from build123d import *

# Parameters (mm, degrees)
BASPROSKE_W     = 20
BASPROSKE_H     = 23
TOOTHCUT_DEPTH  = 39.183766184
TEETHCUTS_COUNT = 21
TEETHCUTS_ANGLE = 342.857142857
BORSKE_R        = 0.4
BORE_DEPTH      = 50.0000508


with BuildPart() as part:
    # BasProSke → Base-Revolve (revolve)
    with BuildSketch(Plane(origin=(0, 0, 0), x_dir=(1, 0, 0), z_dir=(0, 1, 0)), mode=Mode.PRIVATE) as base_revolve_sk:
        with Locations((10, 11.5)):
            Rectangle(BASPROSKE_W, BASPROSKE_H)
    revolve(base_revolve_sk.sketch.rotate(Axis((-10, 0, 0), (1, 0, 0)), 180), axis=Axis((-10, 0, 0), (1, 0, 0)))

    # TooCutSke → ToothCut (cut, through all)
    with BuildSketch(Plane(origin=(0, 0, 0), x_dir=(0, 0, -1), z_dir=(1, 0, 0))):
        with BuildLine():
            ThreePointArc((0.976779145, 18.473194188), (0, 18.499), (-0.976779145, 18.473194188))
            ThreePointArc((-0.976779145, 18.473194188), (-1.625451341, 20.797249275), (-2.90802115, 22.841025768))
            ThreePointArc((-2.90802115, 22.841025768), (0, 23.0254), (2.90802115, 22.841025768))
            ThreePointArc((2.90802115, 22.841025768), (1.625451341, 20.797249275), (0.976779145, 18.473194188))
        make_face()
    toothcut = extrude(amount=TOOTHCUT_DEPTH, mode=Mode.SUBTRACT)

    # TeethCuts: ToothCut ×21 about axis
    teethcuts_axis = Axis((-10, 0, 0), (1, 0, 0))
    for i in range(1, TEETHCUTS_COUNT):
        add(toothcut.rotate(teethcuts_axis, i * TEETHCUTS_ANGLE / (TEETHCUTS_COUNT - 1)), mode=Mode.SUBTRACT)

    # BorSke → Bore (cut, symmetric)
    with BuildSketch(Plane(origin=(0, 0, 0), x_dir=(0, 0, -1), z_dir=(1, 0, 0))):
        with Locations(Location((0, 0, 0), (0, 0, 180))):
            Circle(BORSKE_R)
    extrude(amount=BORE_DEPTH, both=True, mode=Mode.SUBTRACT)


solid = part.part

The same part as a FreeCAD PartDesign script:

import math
import FreeCAD as App
import Part
import Sketcher
from FreeCAD import Vector
Q = App.Units.Quantity


def add_polygon(sketch, points):
    """Adds a closed chain of lines whose ends are joined by coincident constraints."""
    first, n = sketch.GeometryCount, len(points)
    for a, b in zip(points, points[1:] + points[:1]):
        sketch.addGeometry(Part.LineSegment(App.Vector(*a, 0), App.Vector(*b, 0)), False)
    for i in range(n):
        sketch.addConstraint(Sketcher.Constraint("Coincident", first + i, 2, first + (i + 1) % n, 1))

doc = App.newDocument("Part")
body = doc.addObject("PartDesign::Body", "Body")

sketch1 = doc.addObject("Sketcher::SketchObject", "Sketch")
body.addObject(sketch1)
sketch1.AttachmentSupport = (doc.XZ_Plane, [""])
sketch1.MapMode = "FlatFace"
add_polygon(sketch1, [(0, -23), (0, 0), (20, 0), (20, -23)])
sketch1.addConstraint(Sketcher.Constraint("Vertical", 0))
sketch1.addConstraint(Sketcher.Constraint("Horizontal", 1))
sketch1.addConstraint(Sketcher.Constraint("Vertical", 2))
sketch1.addConstraint(Sketcher.Constraint("Horizontal", 3))
sketch1.addConstraint(Sketcher.Constraint("Coincident", 0, 2, -1, 1))
sketch1.addConstraint(Sketcher.Constraint("DistanceX", 1, 1, 1, 2, Q("20 mm")))
sketch1.addConstraint(Sketcher.Constraint("DistanceY", 0, 1, 0, 2, Q("23 mm")))
revolution = doc.addObject("PartDesign::Revolution", "Revolution")
body.addObject(revolution)
revolution.Profile = sketch1
revolution.ReferenceAxis = (sketch1, ["H_Axis"])
revolution.Angle = 360

sketch2 = doc.addObject("Sketcher::SketchObject", "Sketch001")
body.addObject(sketch2)
sketch2.AttachmentSupport = (doc.YZ_Plane, [""])
sketch2.MapMode = "FlatFace"
sketch2.addGeometry(Part.ArcOfCircle(Part.Circle(Vector(0, 0, 0), Vector(0, 0, 1), 18.5), math.radians(-3.03), math.radians(3.03)), False)
sketch2.addGeometry(Part.ArcOfCircle(Part.Circle(Vector(17.4, -9.3, 0), Vector(0, 0, 1), 8.4), math.radians(50), math.radians(83)), False)
sketch2.addGeometry(Part.ArcOfCircle(Part.Circle(Vector(0, 0, 0), Vector(0, 0, 1), 23), math.radians(-7.26), math.radians(7.26)), False)
sketch2.addGeometry(Part.ArcOfCircle(Part.Circle(Vector(17.4, 9.3, 0), Vector(0, 0, 1), 8.4), math.radians(-83), math.radians(-50)), False)
sketch2.addConstraint(Sketcher.Constraint("Coincident", 0, 1, 1, 2))
sketch2.addConstraint(Sketcher.Constraint("Coincident", 1, 1, 2, 1))
sketch2.addConstraint(Sketcher.Constraint("Coincident", 2, 2, 3, 2))
sketch2.addConstraint(Sketcher.Constraint("Coincident", 3, 1, 0, 2))
sketch2.addConstraint(Sketcher.Constraint("Coincident", 0, 3, -1, 1))
sketch2.addConstraint(Sketcher.Constraint("Coincident", 2, 3, -1, 1))
sketch2.addConstraint(Sketcher.Constraint("Equal", 1, 3))
sketch2.addConstraint(Sketcher.Constraint("Symmetric", 1, 3, 3, 3, -1))
sketch2.addConstraint(Sketcher.Constraint("Radius", 1, Q("8.4 mm")))
sketch2.addConstraint(Sketcher.Constraint("Radius", 0, Q("18.499 mm")))
sketch2.addConstraint(Sketcher.Constraint("Radius", 2, Q("23.0254 mm")))
sketch2.addConstraint(Sketcher.Constraint("DistanceY", 0, 1, 2, 2, Q("3.8848 mm")))
sketch2.addConstraint(Sketcher.Constraint("DistanceY", 0, 1, -1, 1, Q("0.976779 mm")))
pocket1 = doc.addObject("PartDesign::Pocket", "Pocket")
body.addObject(pocket1)
pocket1.Profile = sketch2
pocket1.Type = "ThroughAll"
pocket1.Reversed = True
doc.recompute()

polarpattern = doc.addObject("PartDesign::PolarPattern", "PolarPattern")
body.addObject(polarpattern)
polarpattern.Originals = [pocket1]
polarpattern.Axis = (doc.X_Axis, [""])
polarpattern.Angle = 360
polarpattern.Occurrences = 21
body.Tip = polarpattern

sketch3 = doc.addObject("Sketcher::SketchObject", "Sketch002")
body.addObject(sketch3)
sketch3.AttachmentSupport = (doc.YZ_Plane, [""])
sketch3.MapMode = "FlatFace"
sketch3.addGeometry(Part.Circle(Vector(0, 0, 0), Vector(0, 0, 1), 0.4), False)
sketch3.addConstraint(Sketcher.Constraint("Coincident", 0, 3, -1, 1))
sketch3.addConstraint(Sketcher.Constraint("Diameter", 0, Q("0.8 mm")))
pocket2 = doc.addObject("PartDesign::Pocket", "Pocket001")
body.addObject(pocket2)
pocket2.Profile = sketch3
pocket2.Length = 100.000102
pocket2.Midplane = True

doc.recompute()
